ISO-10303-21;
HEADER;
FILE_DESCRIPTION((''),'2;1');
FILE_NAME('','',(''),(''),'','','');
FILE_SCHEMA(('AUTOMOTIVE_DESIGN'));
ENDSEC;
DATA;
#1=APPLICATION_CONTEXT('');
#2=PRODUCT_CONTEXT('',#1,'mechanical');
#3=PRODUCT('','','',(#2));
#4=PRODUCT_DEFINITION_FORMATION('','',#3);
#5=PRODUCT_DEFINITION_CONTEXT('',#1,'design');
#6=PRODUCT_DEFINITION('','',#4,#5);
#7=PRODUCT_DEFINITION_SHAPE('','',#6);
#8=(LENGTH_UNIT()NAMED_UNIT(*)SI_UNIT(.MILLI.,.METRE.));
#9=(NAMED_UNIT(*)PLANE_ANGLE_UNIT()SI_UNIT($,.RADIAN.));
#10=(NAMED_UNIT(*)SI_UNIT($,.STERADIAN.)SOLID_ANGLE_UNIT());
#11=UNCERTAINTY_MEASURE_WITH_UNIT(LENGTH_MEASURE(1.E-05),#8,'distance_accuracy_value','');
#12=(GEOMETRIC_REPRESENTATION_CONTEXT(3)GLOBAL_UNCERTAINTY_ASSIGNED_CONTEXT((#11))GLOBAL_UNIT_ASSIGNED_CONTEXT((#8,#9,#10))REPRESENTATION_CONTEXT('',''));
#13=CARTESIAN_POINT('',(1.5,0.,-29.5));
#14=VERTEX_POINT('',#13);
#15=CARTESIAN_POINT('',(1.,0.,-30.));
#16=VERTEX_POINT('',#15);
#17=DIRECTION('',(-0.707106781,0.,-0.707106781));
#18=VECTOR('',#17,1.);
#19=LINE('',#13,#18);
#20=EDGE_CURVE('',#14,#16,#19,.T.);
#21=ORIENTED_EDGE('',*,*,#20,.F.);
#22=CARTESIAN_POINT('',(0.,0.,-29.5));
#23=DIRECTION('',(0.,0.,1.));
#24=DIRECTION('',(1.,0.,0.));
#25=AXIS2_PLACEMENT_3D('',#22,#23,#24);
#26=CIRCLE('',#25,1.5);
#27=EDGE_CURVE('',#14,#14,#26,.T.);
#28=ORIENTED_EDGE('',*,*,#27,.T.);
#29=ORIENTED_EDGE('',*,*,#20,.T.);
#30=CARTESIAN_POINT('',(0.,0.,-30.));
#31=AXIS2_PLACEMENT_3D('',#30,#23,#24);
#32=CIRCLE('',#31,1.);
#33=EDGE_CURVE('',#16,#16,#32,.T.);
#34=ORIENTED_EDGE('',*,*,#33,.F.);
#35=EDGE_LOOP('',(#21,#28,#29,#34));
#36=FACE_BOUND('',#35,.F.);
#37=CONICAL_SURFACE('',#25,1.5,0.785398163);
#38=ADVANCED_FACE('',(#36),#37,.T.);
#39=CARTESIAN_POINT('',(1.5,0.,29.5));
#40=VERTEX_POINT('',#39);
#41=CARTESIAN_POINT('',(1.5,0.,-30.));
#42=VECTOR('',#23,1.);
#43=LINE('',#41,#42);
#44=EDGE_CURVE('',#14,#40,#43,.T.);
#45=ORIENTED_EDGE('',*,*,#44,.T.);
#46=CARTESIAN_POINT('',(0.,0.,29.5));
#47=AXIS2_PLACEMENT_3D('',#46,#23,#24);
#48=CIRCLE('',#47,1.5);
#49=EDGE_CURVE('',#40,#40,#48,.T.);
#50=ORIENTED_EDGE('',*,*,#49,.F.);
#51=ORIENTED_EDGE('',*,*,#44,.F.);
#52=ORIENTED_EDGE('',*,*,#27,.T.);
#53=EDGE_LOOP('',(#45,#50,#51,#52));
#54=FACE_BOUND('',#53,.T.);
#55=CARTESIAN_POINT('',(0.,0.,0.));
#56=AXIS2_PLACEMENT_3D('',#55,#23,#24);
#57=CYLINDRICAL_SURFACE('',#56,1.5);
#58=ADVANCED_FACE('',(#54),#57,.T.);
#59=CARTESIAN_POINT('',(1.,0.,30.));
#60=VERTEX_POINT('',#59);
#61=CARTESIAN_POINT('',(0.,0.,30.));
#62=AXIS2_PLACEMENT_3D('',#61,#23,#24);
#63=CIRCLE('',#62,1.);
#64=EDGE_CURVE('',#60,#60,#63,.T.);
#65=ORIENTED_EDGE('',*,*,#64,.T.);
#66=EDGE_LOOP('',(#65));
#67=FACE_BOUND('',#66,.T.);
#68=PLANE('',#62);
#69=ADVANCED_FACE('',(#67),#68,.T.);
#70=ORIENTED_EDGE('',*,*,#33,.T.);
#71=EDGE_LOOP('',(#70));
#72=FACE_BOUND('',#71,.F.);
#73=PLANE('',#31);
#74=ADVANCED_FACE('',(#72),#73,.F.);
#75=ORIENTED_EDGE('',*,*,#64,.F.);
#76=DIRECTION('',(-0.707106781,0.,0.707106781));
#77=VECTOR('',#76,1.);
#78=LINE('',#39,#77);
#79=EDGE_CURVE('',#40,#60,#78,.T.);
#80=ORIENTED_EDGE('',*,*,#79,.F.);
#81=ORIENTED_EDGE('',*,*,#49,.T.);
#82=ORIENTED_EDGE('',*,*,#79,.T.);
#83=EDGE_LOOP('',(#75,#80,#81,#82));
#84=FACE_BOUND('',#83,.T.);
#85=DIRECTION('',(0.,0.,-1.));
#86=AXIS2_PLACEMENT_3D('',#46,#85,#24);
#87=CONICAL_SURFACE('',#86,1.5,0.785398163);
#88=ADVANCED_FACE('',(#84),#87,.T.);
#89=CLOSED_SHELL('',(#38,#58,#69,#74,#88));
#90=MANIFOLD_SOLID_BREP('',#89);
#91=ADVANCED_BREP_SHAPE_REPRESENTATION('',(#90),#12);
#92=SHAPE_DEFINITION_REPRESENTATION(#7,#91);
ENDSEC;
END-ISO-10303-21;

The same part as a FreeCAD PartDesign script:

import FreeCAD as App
import Part
import Sketcher

V = App.Vector


def edges_at(feature, points):
    """Names of the edges that pass closest to the given points."""
    edges = feature.Shape.Edges
    near = lambda p: min(range(len(edges)), key=lambda i: edges[i].distToShape(Part.Vertex(*p))[0])
    return sorted({f"Edge{near(p) + 1}" for p in points})

doc = App.newDocument("Part")
body = doc.addObject("PartDesign::Body", "Body")

sketch1 = body.newObject("Sketcher::SketchObject", "Sketch")
sketch1.AttachmentSupport = (doc.getObject("XY_Plane"), [""])
sketch1.MapMode = "FlatFace"
sketch1.addGeometry(Part.Circle(V(0, 0, 0), V(0, 0, 1), 1.5), False)
sketch1.addConstraint([
    Sketcher.Constraint("Coincident", 0, 3, -1, 1),
    Sketcher.Constraint("Diameter", 0, 3.0),
])
pad1 = body.newObject("PartDesign::Pad", "Pad")
pad1.Profile = sketch1
pad1.Length = 60
pad1.Midplane = True
doc.recompute()

chamfer = body.newObject("PartDesign::Chamfer", "Chamfer")
chamfer.Base = (pad1, edges_at(pad1, [(-1.5, 0, -30), (-1.5, 0, 30)]))
chamfer.Size = 0.5

doc.recompute()
